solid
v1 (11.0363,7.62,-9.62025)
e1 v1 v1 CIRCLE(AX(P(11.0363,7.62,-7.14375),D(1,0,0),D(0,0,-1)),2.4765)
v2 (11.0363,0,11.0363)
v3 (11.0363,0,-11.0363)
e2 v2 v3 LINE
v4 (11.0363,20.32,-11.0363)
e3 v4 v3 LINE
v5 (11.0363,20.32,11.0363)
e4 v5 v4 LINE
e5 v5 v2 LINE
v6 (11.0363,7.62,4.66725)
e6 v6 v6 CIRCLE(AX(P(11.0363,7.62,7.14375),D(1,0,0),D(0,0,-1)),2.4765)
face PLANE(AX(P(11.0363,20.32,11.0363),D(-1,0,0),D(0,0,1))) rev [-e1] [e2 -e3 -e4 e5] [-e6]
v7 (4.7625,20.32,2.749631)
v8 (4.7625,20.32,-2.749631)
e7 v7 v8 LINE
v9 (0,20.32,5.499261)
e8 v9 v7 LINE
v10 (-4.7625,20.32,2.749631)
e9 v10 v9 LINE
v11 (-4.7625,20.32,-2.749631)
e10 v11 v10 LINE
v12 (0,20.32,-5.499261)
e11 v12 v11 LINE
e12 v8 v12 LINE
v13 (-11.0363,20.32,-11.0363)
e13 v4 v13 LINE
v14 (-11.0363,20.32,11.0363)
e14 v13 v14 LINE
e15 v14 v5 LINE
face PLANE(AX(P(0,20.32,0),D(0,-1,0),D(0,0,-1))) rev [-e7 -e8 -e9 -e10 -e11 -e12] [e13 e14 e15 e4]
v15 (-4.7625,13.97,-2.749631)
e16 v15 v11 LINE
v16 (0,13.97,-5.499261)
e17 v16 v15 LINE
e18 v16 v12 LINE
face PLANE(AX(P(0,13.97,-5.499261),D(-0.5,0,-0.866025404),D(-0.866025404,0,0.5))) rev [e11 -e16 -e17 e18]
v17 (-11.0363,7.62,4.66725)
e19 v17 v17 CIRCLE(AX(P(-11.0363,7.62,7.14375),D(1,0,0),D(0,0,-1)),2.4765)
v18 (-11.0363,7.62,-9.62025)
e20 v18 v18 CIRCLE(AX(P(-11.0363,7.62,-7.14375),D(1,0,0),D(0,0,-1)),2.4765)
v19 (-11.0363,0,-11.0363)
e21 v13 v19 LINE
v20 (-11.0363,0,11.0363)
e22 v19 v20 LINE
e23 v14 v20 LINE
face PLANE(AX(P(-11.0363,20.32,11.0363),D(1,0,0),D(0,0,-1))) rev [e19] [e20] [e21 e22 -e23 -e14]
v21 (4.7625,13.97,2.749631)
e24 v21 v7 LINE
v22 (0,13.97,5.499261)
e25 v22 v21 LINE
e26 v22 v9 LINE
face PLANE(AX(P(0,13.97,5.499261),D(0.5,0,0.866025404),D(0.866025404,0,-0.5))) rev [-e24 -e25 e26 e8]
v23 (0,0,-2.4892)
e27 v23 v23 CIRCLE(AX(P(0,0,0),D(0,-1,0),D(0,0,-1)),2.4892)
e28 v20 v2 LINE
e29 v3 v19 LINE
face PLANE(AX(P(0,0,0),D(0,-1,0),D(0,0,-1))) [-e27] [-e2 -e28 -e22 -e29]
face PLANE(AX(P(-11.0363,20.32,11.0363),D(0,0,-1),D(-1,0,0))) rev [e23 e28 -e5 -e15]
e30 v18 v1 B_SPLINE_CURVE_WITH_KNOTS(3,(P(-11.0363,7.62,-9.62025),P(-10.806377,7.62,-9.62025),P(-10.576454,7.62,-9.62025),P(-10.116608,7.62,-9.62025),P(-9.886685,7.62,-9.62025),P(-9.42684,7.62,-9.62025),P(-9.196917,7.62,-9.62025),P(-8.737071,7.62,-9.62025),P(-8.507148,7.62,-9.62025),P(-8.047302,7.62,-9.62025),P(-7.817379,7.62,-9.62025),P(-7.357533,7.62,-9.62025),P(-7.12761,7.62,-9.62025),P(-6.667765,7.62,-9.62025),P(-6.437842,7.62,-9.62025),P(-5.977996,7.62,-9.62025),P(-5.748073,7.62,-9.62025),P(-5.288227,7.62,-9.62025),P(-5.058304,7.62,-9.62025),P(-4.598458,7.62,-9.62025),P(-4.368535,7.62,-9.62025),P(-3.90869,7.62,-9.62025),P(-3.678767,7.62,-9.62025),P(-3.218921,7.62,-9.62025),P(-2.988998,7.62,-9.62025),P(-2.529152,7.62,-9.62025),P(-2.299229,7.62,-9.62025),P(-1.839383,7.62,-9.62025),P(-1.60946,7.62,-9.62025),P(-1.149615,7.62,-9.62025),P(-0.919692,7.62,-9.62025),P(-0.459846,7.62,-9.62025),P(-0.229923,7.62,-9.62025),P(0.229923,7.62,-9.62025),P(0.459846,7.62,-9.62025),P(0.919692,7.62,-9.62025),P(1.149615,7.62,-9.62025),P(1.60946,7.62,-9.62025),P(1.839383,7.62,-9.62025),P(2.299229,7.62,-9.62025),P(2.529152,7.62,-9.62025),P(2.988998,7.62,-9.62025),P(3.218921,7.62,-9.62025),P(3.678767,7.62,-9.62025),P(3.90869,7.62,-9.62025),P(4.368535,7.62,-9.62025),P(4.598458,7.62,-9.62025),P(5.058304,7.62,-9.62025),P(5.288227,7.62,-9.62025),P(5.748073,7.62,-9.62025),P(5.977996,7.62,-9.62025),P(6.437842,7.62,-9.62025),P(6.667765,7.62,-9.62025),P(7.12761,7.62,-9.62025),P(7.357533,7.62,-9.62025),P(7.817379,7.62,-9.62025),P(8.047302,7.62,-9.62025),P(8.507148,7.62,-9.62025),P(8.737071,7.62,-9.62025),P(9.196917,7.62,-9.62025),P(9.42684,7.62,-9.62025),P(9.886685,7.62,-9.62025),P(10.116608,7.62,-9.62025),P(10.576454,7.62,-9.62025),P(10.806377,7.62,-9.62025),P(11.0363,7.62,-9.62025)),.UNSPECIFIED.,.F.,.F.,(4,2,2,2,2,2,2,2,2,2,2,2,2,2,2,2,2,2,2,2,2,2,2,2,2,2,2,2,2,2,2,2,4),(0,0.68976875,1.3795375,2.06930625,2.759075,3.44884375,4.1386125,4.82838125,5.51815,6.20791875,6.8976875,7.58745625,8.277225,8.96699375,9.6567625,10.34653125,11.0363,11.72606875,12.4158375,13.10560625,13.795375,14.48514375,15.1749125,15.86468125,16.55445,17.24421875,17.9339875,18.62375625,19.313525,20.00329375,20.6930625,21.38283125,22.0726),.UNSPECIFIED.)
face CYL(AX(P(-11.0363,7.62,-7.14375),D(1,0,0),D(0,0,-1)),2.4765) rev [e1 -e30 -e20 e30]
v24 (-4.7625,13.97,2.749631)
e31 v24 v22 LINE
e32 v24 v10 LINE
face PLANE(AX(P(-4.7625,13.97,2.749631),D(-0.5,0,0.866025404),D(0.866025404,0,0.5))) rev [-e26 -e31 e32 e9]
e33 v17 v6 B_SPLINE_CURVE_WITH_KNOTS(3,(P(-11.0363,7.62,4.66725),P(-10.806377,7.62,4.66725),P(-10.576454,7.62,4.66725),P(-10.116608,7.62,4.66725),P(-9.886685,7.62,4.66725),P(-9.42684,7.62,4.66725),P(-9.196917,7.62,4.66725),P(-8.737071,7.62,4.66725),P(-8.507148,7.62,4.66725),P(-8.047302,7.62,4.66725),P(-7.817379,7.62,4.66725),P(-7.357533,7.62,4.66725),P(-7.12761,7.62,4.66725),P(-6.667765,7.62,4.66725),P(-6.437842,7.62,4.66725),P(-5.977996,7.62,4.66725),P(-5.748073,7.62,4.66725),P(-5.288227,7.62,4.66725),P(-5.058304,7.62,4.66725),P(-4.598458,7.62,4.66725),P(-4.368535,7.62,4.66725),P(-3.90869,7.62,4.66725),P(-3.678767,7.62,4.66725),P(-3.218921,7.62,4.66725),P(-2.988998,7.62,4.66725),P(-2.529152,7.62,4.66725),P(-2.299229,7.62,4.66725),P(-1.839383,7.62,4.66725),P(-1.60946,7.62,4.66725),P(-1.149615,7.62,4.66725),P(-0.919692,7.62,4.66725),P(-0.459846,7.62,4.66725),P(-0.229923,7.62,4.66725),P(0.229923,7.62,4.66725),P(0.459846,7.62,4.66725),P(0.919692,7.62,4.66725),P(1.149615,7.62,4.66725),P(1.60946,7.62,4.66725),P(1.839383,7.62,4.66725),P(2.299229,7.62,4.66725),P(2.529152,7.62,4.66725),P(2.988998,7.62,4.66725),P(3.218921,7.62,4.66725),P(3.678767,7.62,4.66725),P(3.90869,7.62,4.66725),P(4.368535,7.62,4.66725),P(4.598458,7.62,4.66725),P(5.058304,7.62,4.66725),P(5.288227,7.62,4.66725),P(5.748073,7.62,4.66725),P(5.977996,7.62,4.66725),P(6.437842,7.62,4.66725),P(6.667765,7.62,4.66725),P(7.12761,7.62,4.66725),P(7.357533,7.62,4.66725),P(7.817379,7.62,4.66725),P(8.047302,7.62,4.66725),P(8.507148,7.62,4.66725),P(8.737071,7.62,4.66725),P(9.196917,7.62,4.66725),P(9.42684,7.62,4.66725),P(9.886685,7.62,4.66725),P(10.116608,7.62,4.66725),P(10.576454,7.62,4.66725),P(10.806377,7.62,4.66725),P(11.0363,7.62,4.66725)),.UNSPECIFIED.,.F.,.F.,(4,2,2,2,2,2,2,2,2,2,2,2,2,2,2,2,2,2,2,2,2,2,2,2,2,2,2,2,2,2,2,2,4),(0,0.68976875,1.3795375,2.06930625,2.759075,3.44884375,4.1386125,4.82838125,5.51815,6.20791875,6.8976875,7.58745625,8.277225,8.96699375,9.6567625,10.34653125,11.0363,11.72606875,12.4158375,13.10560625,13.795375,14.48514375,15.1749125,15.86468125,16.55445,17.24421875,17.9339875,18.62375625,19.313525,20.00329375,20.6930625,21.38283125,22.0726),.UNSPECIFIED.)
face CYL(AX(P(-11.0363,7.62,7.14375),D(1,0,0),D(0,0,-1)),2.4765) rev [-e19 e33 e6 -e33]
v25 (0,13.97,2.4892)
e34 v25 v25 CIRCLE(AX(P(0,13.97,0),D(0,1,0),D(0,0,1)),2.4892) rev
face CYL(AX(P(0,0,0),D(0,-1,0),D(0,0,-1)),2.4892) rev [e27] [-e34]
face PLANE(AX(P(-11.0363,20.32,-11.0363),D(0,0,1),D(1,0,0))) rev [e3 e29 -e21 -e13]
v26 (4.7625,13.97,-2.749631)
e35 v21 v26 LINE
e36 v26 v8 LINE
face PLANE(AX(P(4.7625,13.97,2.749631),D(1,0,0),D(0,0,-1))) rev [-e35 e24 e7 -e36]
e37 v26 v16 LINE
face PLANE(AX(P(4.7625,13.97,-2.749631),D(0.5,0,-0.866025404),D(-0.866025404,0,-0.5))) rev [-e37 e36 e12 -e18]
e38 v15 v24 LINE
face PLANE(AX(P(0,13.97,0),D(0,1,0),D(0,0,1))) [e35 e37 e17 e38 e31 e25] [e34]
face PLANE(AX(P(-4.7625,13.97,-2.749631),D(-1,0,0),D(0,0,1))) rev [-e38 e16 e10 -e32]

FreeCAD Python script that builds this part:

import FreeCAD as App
import Part
import Sketcher
from FreeCAD import Vector
Q = App.Units.Quantity


def add_polygon(sketch, points):
    """Adds a closed chain of lines whose ends are joined by coincident constraints."""
    first, n = sketch.GeometryCount, len(points)
    for a, b in zip(points, points[1:] + points[:1]):
        sketch.addGeometry(Part.LineSegment(App.Vector(*a, 0), App.Vector(*b, 0)), False)
    for i in range(n):
        sketch.addConstraint(Sketcher.Constraint("Coincident", first + i, 2, first + (i + 1) % n, 1))

doc = App.newDocument("Part")
body = doc.addObject("PartDesign::Body", "Body")

# Sketch on XZ plane
sketch1 = doc.addObject("Sketcher::SketchObject", "Sketch")
body.addObject(sketch1)
sketch1.AttachmentSupport = (doc.XZ_Plane, [""])
sketch1.MapMode = "FlatFace"
add_polygon(sketch1, [(-11, -11), (-11, 11), (11, 11), (11, -11)])  # lines 0-3
sketch1.addConstraint([
    Sketcher.Constraint("Vertical", 0),
    Sketcher.Constraint("Horizontal", 1),
    Sketcher.Constraint("Vertical", 2),
    Sketcher.Constraint("Horizontal", 3),
    Sketcher.Constraint("Symmetric", 0, 2, 2, 2, -1, 1),
    Sketcher.Constraint("Equal", 3, 0),
    Sketcher.Constraint("DistanceX", 1, 1, 1, 2, Q("0.869 in")),
])
pad1 = doc.addObject("PartDesign::Pad", "Pad")
body.addObject(pad1)
pad1.Profile = sketch1
pad1.Length = Q("0.8 in")
pad1.Reversed = True

# Sketch on XZ plane
sketch2 = doc.addObject("Sketcher::SketchObject", "Sketch001")
body.addObject(sketch2)
sketch2.AttachmentSupport = (doc.XZ_Plane, [""])
sketch2.MapMode = "FlatFace"
sketch2.addGeometry(Part.Circle(Vector(0, 0, 0), Vector(0, 0, 1), 2.5), False)
sketch2.addConstraint([
    Sketcher.Constraint("Coincident", 0, 3, -1, 1),
    Sketcher.Constraint("Diameter", 0, Q("0.196 in")),
])
doc.recompute()
hole = doc.addObject("PartDesign::Hole", "Hole")
body.addObject(hole)
hole.Profile = sketch2
hole.ThreadType = "None"
hole.Diameter = Q("0.196 in")
hole.DepthType = "ThroughAll"

# Sketch on YZ plane
sketch3 = doc.addObject("Sketcher::SketchObject", "Sketch002")
body.addObject(sketch3)
sketch3.AttachmentSupport = (doc.YZ_Plane, [""])
sketch3.MapMode = "FlatFace"
sketch3.AttachmentOffset = App.Placement(Vector(0, 0, 0.4345 * 25.4), App.Rotation())
sketch3.addGeometry([
    Part.Circle(Vector(7.6, 7.1, 0), Vector(0, 0, 1), 2.5),
    Part.Circle(Vector(7.6, -7.1, 0), Vector(0, 0, 1), 2.5),
], False)
sketch3.addConstraint([
    Sketcher.Constraint("Equal", 0, 1),
    Sketcher.Constraint("Symmetric", 0, 3, 1, 3, -1),
    Sketcher.Constraint("Diameter", 0, Q("0.195 in")),
    Sketcher.Constraint("DistanceX", -1, 1, 0, 3, Q("0.3 in")),
    Sketcher.Constraint("DistanceY", -1, 1, 0, 3, Q("0.28125 in")),
])
pocket1 = doc.addObject("PartDesign::Pocket", "Pocket")
body.addObject(pocket1)
pocket1.Profile = sketch3
pocket1.Type = "ThroughAll"

# Sketch on XZ plane
sketch4 = doc.addObject("Sketcher::SketchObject", "Sketch003")
body.addObject(sketch4)
sketch4.AttachmentSupport = (doc.XZ_Plane, [""])
sketch4.MapMode = "FlatFace"
sketch4.AttachmentOffset = App.Placement(Vector(0, 0, -0.8 * 25.4), App.Rotation())
add_polygon(sketch4, [(0, -5), (-5, -3), (-5, 3), (0, 5), (5, 3), (5, -3)])  # lines 0-5
sketch4.addConstraint([
    Sketcher.Constraint("Vertical", 1),
    Sketcher.Constraint("Vertical", 4),
    Sketcher.Constraint("Symmetric", 0, 2, 3, 2, -1, 1),
    Sketcher.Constraint("Symmetric", 2, 2, 5, 2, -1, 1),
    Sketcher.Constraint("PointOnObject", 2, 2, -2),
    Sketcher.Constraint("Parallel", 2, 5),
    Sketcher.Constraint("Horizontal", 1, 2, 3, 2),
    Sketcher.Constraint("Angle", 0, Q("150 deg")),
    Sketcher.Constraint("DistanceX", 0, 2, -1, 1, Q("0.1875 in")),
    Sketcher.Constraint("DistanceY", 1, 1, 1, 2, 5.499261),
])
pocket2 = doc.addObject("PartDesign::Pocket", "Pocket001")
body.addObject(pocket2)
pocket2.Profile = sketch4
pocket2.Length = Q("0.25 in")
pocket2.Reversed = True

doc.recompute()
